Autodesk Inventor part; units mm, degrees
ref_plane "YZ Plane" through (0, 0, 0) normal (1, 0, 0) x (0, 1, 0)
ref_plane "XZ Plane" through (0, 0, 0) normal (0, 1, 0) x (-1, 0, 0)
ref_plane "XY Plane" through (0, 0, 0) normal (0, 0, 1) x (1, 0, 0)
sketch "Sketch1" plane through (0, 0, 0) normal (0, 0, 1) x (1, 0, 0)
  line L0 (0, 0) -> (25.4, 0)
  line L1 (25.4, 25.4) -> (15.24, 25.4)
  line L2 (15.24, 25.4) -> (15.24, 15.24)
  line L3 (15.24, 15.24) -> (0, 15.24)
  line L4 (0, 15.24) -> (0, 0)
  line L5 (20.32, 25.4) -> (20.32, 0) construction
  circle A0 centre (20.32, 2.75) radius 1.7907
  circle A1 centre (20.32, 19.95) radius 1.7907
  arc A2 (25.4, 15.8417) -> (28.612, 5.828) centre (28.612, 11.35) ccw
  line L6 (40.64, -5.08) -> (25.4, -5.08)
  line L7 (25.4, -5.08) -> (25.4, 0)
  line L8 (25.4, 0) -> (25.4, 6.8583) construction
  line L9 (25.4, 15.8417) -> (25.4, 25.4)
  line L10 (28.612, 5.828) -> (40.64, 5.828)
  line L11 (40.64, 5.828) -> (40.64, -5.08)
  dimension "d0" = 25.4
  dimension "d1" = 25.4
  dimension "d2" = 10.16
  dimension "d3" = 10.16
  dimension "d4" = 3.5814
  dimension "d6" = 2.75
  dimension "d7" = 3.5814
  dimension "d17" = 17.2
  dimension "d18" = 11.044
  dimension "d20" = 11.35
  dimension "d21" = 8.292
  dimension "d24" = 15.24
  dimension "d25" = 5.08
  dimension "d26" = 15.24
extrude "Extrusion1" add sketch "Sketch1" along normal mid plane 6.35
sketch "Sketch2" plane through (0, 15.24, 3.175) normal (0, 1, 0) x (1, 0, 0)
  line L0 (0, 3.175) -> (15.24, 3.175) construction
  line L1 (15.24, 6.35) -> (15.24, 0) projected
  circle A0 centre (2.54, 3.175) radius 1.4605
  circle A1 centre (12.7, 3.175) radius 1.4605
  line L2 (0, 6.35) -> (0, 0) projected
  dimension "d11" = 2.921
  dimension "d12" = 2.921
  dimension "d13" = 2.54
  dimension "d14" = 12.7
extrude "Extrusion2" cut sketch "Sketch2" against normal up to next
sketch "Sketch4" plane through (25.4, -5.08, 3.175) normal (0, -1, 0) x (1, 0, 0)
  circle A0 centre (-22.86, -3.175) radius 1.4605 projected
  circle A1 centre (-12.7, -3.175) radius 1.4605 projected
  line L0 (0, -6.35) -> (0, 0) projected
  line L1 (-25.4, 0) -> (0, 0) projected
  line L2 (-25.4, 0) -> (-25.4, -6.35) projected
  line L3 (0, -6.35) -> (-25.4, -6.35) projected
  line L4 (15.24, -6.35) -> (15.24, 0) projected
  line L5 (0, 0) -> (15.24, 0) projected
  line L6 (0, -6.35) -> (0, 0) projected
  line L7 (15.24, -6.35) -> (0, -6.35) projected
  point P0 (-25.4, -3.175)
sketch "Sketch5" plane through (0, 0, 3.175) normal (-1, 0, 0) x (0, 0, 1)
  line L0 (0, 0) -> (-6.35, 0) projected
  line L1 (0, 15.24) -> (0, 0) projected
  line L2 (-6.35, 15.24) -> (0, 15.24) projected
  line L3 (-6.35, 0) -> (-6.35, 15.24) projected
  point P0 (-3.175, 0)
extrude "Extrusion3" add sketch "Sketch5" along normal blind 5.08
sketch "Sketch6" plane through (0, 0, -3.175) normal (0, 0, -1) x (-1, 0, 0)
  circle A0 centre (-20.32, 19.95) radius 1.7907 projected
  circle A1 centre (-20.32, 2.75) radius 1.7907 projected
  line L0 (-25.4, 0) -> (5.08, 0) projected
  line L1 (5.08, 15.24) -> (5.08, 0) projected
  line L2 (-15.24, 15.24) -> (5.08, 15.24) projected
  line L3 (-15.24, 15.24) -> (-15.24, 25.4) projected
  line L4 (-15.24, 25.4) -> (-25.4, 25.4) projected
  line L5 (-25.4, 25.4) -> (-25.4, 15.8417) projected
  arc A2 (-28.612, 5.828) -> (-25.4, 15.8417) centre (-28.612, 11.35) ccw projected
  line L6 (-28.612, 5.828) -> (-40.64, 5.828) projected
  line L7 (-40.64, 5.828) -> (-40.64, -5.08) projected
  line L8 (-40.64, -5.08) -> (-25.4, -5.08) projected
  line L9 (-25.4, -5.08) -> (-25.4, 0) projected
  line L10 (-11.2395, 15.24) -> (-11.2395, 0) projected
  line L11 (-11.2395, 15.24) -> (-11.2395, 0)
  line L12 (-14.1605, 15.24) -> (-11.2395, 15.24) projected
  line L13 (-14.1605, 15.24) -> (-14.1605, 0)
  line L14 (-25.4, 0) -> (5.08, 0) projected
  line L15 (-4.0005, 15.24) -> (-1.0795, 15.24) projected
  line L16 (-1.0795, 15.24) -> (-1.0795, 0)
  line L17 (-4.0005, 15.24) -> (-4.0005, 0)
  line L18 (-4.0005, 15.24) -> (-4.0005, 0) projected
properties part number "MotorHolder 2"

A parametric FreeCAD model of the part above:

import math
import FreeCAD as App
import Part
import Sketcher

V = App.Vector
Q = App.Units.Quantity


def add_polygon(sketch, points):
    """Adds a closed chain of lines whose ends are joined by coincident constraints."""
    first, n = sketch.GeometryCount, len(points)
    for a, b in zip(points, points[1:] + points[:1]):
        sketch.addGeometry(Part.LineSegment(App.Vector(*a, 0), App.Vector(*b, 0)), False)
    for i in range(n):
        sketch.addConstraint(Sketcher.Constraint("Coincident", first + i, 2, first + (i + 1) % n, 1))

doc = App.newDocument("Part")
body = doc.addObject("PartDesign::Body", "Body")

# Sketch on XY plane
sketch1 = doc.addObject("Sketcher::SketchObject", "Sketch")
body.addObject(sketch1)
sketch1.AttachmentSupport = (doc.XY_Plane, [""])
sketch1.MapMode = "FlatFace"
sketch1.addGeometry([
    Part.LineSegment(V(0, 15.24, 0), V(0, 0, 0)),  # 0
    Part.LineSegment(V(0, 0, 0), V(25.4, 0, 0)),  # 1
    Part.LineSegment(V(25.4, 0, 0), V(25.4, -5.08, 0)),  # 2
    Part.LineSegment(V(25.4, -5.08, 0), V(40.64, -5.08, 0)),  # 3
    Part.LineSegment(V(40.64, -5.08, 0), V(40.64, 5.828, 0)),  # 4
    Part.LineSegment(V(40.64, 5.828, 0), V(28.612, 5.828, 0)),  # 5
    Part.ArcOfCircle(Part.Circle(V(28.612, 11.35, 0), V(0, 0, 1), 5.521985), math.radians(125.568435), math.radians(270)),  # 6
    Part.LineSegment(V(25.4, 15.8417, 0), V(25.4, 25.4, 0)),  # 7
    Part.LineSegment(V(25.4, 25.4, 0), V(15.24, 25.4, 0)),  # 8
    Part.LineSegment(V(15.24, 25.4, 0), V(15.24, 15.24, 0)),  # 9
    Part.LineSegment(V(15.24, 15.24, 0), V(0, 15.24, 0)),  # 10
    Part.Circle(V(20.32, 2.75, 0), V(0, 0, 1), 1.7907),  # 11
    Part.Circle(V(20.32, 19.95, 0), V(0, 0, 1), 1.7907),  # 12
], False)
sketch1.addConstraint([
    Sketcher.Constraint("Coincident", 0, 2, 1, 1),
    Sketcher.Constraint("Coincident", 1, 2, 2, 1),
    Sketcher.Constraint("Coincident", 2, 2, 3, 1),
    Sketcher.Constraint("Coincident", 3, 2, 4, 1),
    Sketcher.Constraint("Coincident", 4, 2, 5, 1),
    Sketcher.Constraint("Tangent", 5, 2, 6, 2),
    Sketcher.Constraint("Coincident", 6, 1, 7, 1),
    Sketcher.Constraint("Coincident", 7, 2, 8, 1),
    Sketcher.Constraint("Coincident", 8, 2, 9, 1),
    Sketcher.Constraint("Coincident", 9, 2, 10, 1),
    Sketcher.Constraint("Coincident", 10, 2, 0, 1),
    Sketcher.Constraint("Vertical", 0),
    Sketcher.Constraint("Horizontal", 1),
    Sketcher.Constraint("Vertical", 2),
    Sketcher.Constraint("Horizontal", 3),
    Sketcher.Constraint("Vertical", 4),
    Sketcher.Constraint("Horizontal", 5),
    Sketcher.Constraint("Vertical", 7),
    Sketcher.Constraint("Horizontal", 8),
    Sketcher.Constraint("Vertical", 9),
    Sketcher.Constraint("Horizontal", 10),
    Sketcher.Constraint("Coincident", 0, 2, -1, 1),
    Sketcher.Constraint("Equal", 11, 12),
    Sketcher.Constraint("Vertical", 11, 3, 12, 3),
    Sketcher.Constraint("Vertical", 2, 2, 6, 1),
    Sketcher.Constraint("Equal", 3, 10),
    Sketcher.Constraint("Equal", 10, 0),
    Sketcher.Constraint("Equal", 8, 9),
    Sketcher.Constraint("DistanceX", 1, 1, 1, 2, Q("1 in")),
    Sketcher.Constraint("Diameter", 11, Q("0.141 in")),
    Sketcher.Constraint("DistanceX", 3, 1, 3, 2, Q("0.6 in")),
    Sketcher.Constraint("DistanceY", 2, 2, 2, 1, Q("0.2 in")),
    Sketcher.Constraint("Radius", 6, Q("0.2174 in")),
    Sketcher.Constraint("DistanceX", 11, 3, 1, 2, Q("0.2 in")),
    Sketcher.Constraint("DistanceY", -1, 1, 6, 3, Q("11.35 mm")),
    Sketcher.Constraint("DistanceY", -1, 1, 11, 3, Q("2.75 mm")),
    Sketcher.Constraint("DistanceX", 11, 3, 6, 3, Q("8.292 mm")),
    Sketcher.Constraint("DistanceY", 11, 3, 12, 3, Q("17.2 mm")),
])
pad1 = doc.addObject("PartDesign::Pad", "Pad")
body.addObject(pad1)
pad1.Profile = sketch1
pad1.Length = Q("0.25 in")
pad1.Midplane = True

# Sketch on XZ plane
sketch2 = doc.addObject("Sketcher::SketchObject", "Sketch001")
body.addObject(sketch2)
sketch2.AttachmentSupport = (doc.XZ_Plane, [""])
sketch2.MapMode = "FlatFace"
sketch2.AttachmentOffset = App.Placement(V(0, 0, -0.6 * 25.4), App.Rotation())
sketch2.addGeometry([
    Part.Circle(V(2.54, 0, 0), V(0, 0, 1), 1.4605),
    Part.Circle(V(12.7, 0, 0), V(0, 0, 1), 1.4605),
], False)
sketch2.addConstraint([
    Sketcher.Constraint("Equal", 0, 1),
    Sketcher.Constraint("PointOnObject", 0, 3, -1),
    Sketcher.Constraint("PointOnObject", 1, 3, -1),
    Sketcher.Constraint("Diameter", 0, Q("0.115 in")),
    Sketcher.Constraint("DistanceX", -1, 1, 0, 3, Q("0.1 in")),
    Sketcher.Constraint("DistanceX", -1, 1, 1, 3, Q("0.5 in")),
])
pocket1 = doc.addObject("PartDesign::Pocket", "Pocket")
body.addObject(pocket1)
pocket1.Profile = sketch2
pocket1.Type = "UpToFirst"
pocket1.Reversed = True

# Sketch on YZ plane
sketch3 = doc.addObject("Sketcher::SketchObject", "Sketch002")
body.addObject(sketch3)
sketch3.AttachmentSupport = (doc.YZ_Plane, [""])
sketch3.MapMode = "FlatFace"
add_polygon(sketch3, [(0, -3.175), (0, 3.175), (15.24, 3.175), (15.24, -3.175)])  # lines 0-3
sketch3.addConstraint([
    Sketcher.Constraint("Vertical", 0),
    Sketcher.Constraint("Horizontal", 1),
    Sketcher.Constraint("Vertical", 2),
    Sketcher.Constraint("Horizontal", 3),
    Sketcher.Constraint("Symmetric", 0, 2, 3, 2, -1, 1),
    Sketcher.Constraint("DistanceX", 1, 1, 1, 2, Q("0.6 in")),
    Sketcher.Constraint("DistanceY", 0, 1, 0, 2, Q("0.25 in")),
])
pad2 = doc.addObject("PartDesign::Pad", "Pad001")
body.addObject(pad2)
pad2.Profile = sketch3
pad2.Length = Q("0.2 in")
pad2.Reversed = True

doc.recompute()
